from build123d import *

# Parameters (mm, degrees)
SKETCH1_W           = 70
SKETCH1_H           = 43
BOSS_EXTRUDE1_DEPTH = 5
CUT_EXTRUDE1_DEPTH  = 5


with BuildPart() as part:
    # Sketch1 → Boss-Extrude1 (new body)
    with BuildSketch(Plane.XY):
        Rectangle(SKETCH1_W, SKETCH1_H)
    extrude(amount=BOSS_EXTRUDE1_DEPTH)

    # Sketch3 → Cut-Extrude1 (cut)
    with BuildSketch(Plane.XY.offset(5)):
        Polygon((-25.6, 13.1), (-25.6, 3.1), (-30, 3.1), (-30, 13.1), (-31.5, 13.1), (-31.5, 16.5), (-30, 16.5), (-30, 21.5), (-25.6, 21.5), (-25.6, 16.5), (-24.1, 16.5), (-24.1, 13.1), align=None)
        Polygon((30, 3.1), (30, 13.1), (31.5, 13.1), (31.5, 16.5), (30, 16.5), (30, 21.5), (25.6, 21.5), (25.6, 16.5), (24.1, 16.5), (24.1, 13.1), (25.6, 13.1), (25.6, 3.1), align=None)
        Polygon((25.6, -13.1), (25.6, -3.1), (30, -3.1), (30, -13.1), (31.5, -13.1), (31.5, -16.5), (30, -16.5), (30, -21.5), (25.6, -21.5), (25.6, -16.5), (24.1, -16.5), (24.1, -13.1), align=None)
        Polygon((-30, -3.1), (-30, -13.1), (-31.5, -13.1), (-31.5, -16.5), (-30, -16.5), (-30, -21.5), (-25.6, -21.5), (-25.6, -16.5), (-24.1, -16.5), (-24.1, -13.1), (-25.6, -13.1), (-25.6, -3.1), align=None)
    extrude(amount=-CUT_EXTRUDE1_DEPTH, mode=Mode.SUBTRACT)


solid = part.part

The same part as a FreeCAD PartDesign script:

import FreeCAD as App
import Part
import Sketcher
Q = App.Units.Quantity

doc = App.newDocument("Part")
body = doc.addObject("PartDesign::Body", "Body")

# Sketch on XY plane
sketch1 = body.newObject("Sketcher::SketchObject", "Sketch")
sketch1.AttachmentSupport = (doc.getObject("XY_Plane"), [""])
sketch1.MapMode = "FlatFace"
sketch1.addGeometry([
    Part.LineSegment(App.Vector(-35, 22, 0), App.Vector(-35, -22, 0)),
    Part.LineSegment(App.Vector(-35, -22, 0), App.Vector(35, -22, 0)),
    Part.LineSegment(App.Vector(35, -22, 0), App.Vector(35, 22, 0)),
    Part.LineSegment(App.Vector(35, 22, 0), App.Vector(-35, 22, 0)),
], False)
sketch1.addConstraint([
    Sketcher.Constraint("Coincident", 0, 2, 1, 1),
    Sketcher.Constraint("Coincident", 1, 2, 2, 1),
    Sketcher.Constraint("Coincident", 2, 2, 3, 1),
    Sketcher.Constraint("Coincident", 3, 2, 0, 1),
    Sketcher.Constraint("Vertical", 0),
    Sketcher.Constraint("Horizontal", 1),
    Sketcher.Constraint("Vertical", 2),
    Sketcher.Constraint("Horizontal", 3),
    Sketcher.Constraint("Symmetric", 0, 2, 2, 2, -1, 1),
    Sketcher.Constraint("DistanceX", 1, 1, 1, 2, Q("70 mm")),
    Sketcher.Constraint("DistanceY", 0, 2, 0, 1, Q("43 mm")),
])
pad1 = body.newObject("PartDesign::Pad", "Pad")
pad1.Profile = sketch1
pad1.Length = 5

# Sketch on XY plane
sketch2 = body.newObject("Sketcher::SketchObject", "Sketch001")
sketch2.AttachmentSupport = (doc.getObject("XY_Plane"), [""])
sketch2.MapMode = "FlatFace"
sketch2.AttachmentOffset = App.Placement(App.Vector(0, 0, 5), App.Rotation())
sketch2.addGeometry([
    Part.LineSegment(App.Vector(-25.6, 3.1, 0), App.Vector(-25.6, 13.1, 0)),  # 0
    Part.LineSegment(App.Vector(-25.6, 13.1, 0), App.Vector(-24.1, 13.1, 0)),  # 1
    Part.LineSegment(App.Vector(-24.1, 13.1, 0), App.Vector(-24.1, 16.5, 0)),  # 2
    Part.LineSegment(App.Vector(-24.1, 16.5, 0), App.Vector(-25.6, 16.5, 0)),  # 3
    Part.LineSegment(App.Vector(-25.6, 16.5, 0), App.Vector(-25.6, 21.5, 0)),  # 4
    Part.LineSegment(App.Vector(-25.6, 21.5, 0), App.Vector(-30, 21.5, 0)),  # 5
    Part.LineSegment(App.Vector(-30, 21.5, 0), App.Vector(-30, 16.5, 0)),  # 6
    Part.LineSegment(App.Vector(-30, 16.5, 0), App.Vector(-31.5, 16.5, 0)),  # 7
    Part.LineSegment(App.Vector(-31.5, 16.5, 0), App.Vector(-31.5, 13.1, 0)),  # 8
    Part.LineSegment(App.Vector(-31.5, 13.1, 0), App.Vector(-30, 13.1, 0)),  # 9
    Part.LineSegment(App.Vector(-30, 13.1, 0), App.Vector(-30, 3.1, 0)),  # 10
    Part.LineSegment(App.Vector(-30, 3.1, 0), App.Vector(-25.6, 3.1, 0)),  # 11
    Part.LineSegment(App.Vector(30, 3.1, 0), App.Vector(30, 13.1, 0)),  # 12
    Part.LineSegment(App.Vector(30, 13.1, 0), App.Vector(31.5, 13.1, 0)),  # 13
    Part.LineSegment(App.Vector(31.5, 13.1, 0), App.Vector(31.5, 16.5, 0)),  # 14
    Part.LineSegment(App.Vector(31.5, 16.5, 0), App.Vector(30, 16.5, 0)),  # 15
    Part.LineSegment(App.Vector(30, 16.5, 0), App.Vector(30, 21.5, 0)),  # 16
    Part.LineSegment(App.Vector(30, 21.5, 0), App.Vector(25.6, 21.5, 0)),  # 17
    Part.LineSegment(App.Vector(25.6, 21.5, 0), App.Vector(25.6, 16.5, 0)),  # 18
    Part.LineSegment(App.Vector(25.6, 16.5, 0), App.Vector(24.1, 16.5, 0)),  # 19
    Part.LineSegment(App.Vector(24.1, 16.5, 0), App.Vector(24.1, 13.1, 0)),  # 20
    Part.LineSegment(App.Vector(24.1, 13.1, 0), App.Vector(25.6, 13.1, 0)),  # 21
    Part.LineSegment(App.Vector(25.6, 13.1, 0), App.Vector(25.6, 3.1, 0)),  # 22
    Part.LineSegment(App.Vector(25.6, 3.1, 0), App.Vector(30, 3.1, 0)),  # 23
    Part.LineSegment(App.Vector(25.6, -3.1, 0), App.Vector(25.6, -13.1, 0)),  # 24
    Part.LineSegment(App.Vector(25.6, -13.1, 0), App.Vector(24.1, -13.1, 0)),  # 25
    Part.LineSegment(App.Vector(24.1, -13.1, 0), App.Vector(24.1, -16.5, 0)),  # 26
    Part.LineSegment(App.Vector(24.1, -16.5, 0), App.Vector(25.6, -16.5, 0)),  # 27
    Part.LineSegment(App.Vector(25.6, -16.5, 0), App.Vector(25.6, -21.5, 0)),  # 28
    Part.LineSegment(App.Vector(25.6, -21.5, 0), App.Vector(30, -21.5, 0)),  # 29
    Part.LineSegment(App.Vector(30, -21.5, 0), App.Vector(30, -16.5, 0)),  # 30
    Part.LineSegment(App.Vector(30, -16.5, 0), App.Vector(31.5, -16.5, 0)),  # 31
    Part.LineSegment(App.Vector(31.5, -16.5, 0), App.Vector(31.5, -13.1, 0)),  # 32
    Part.LineSegment(App.Vector(31.5, -13.1, 0), App.Vector(30, -13.1, 0)),  # 33
    Part.LineSegment(App.Vector(30, -13.1, 0), App.Vector(30, -3.1, 0)),  # 34
    Part.LineSegment(App.Vector(30, -3.1, 0), App.Vector(25.6, -3.1, 0)),  # 35
    Part.LineSegment(App.Vector(-30, -3.1, 0), App.Vector(-30, -13.1, 0)),  # 36
    Part.LineSegment(App.Vector(-30, -13.1, 0), App.Vector(-31.5, -13.1, 0)),  # 37
    Part.LineSegment(App.Vector(-31.5, -13.1, 0), App.Vector(-31.5, -16.5, 0)),  # 38
    Part.LineSegment(App.Vector(-31.5, -16.5, 0), App.Vector(-30, -16.5, 0)),  # 39
    Part.LineSegment(App.Vector(-30, -16.5, 0), App.Vector(-30, -21.5, 0)),  # 40
    Part.LineSegment(App.Vector(-30, -21.5, 0), App.Vector(-25.6, -21.5, 0)),  # 41
    Part.LineSegment(App.Vector(-25.6, -21.5, 0), App.Vector(-25.6, -16.5, 0)),  # 42
    Part.LineSegment(App.Vector(-25.6, -16.5, 0), App.Vector(-24.1, -16.5, 0)),  # 43
    Part.LineSegment(App.Vector(-24.1, -16.5, 0), App.Vector(-24.1, -13.1, 0)),  # 44
    Part.LineSegment(App.Vector(-24.1, -13.1, 0), App.Vector(-25.6, -13.1, 0)),  # 45
    Part.LineSegment(App.Vector(-25.6, -13.1, 0), App.Vector(-25.6, -3.1, 0)),  # 46
    Part.LineSegment(App.Vector(-25.6, -3.1, 0), App.Vector(-30, -3.1, 0)),  # 47
], False)
sketch2.addConstraint([
    Sketcher.Constraint("Coincident", 0, 2, 1, 1),
    Sketcher.Constraint("Coincident", 1, 2, 2, 1),
    Sketcher.Constraint("Coincident", 2, 2, 3, 1),
    Sketcher.Constraint("Coincident", 3, 2, 4, 1),
    Sketcher.Constraint("Coincident", 4, 2, 5, 1),
    Sketcher.Constraint("Coincident", 5, 2, 6, 1),
    Sketcher.Constraint("Coincident", 6, 2, 7, 1),
    Sketcher.Constraint("Coincident", 7, 2, 8, 1),
    Sketcher.Constraint("Coincident", 8, 2, 9, 1),
    Sketcher.Constraint("Coincident", 9, 2, 10, 1),
    Sketcher.Constraint("Coincident", 10, 2, 11, 1),
    Sketcher.Constraint("Coincident", 11, 2, 0, 1),
    Sketcher.Constraint("Coincident", 12, 2, 13, 1),
    Sketcher.Constraint("Coincident", 13, 2, 14, 1),
    Sketcher.Constraint("Coincident", 14, 2, 15, 1),
    Sketcher.Constraint("Coincident", 15, 2, 16, 1),
    Sketcher.Constraint("Coincident", 16, 2, 17, 1),
    Sketcher.Constraint("Coincident", 17, 2, 18, 1),
    Sketcher.Constraint("Coincident", 18, 2, 19, 1),
    Sketcher.Constraint("Coincident", 19, 2, 20, 1),
    Sketcher.Constraint("Coincident", 20, 2, 21, 1),
    Sketcher.Constraint("Coincident", 21, 2, 22, 1),
    Sketcher.Constraint("Coincident", 22, 2, 23, 1),
    Sketcher.Constraint("Coincident", 23, 2, 12, 1),
    Sketcher.Constraint("Coincident", 24, 2, 25, 1),
    Sketcher.Constraint("Coincident", 25, 2, 26, 1),
    Sketcher.Constraint("Coincident", 26, 2, 27, 1),
    Sketcher.Constraint("Coincident", 27, 2, 28, 1),
    Sketcher.Constraint("Coincident", 28, 2, 29, 1),
    Sketcher.Constraint("Coincident", 29, 2, 30, 1),
    Sketcher.Constraint("Coincident", 30, 2, 31, 1),
    Sketcher.Constraint("Coincident", 31, 2, 32, 1),
    Sketcher.Constraint("Coincident", 32, 2, 33, 1),
    Sketcher.Constraint("Coincident", 33, 2, 34, 1),
    Sketcher.Constraint("Coincident", 34, 2, 35, 1),
    Sketcher.Constraint("Coincident", 35, 2, 24, 1),
    Sketcher.Constraint("Coincident", 36, 2, 37, 1),
    Sketcher.Constraint("Coincident", 37, 2, 38, 1),
    Sketcher.Constraint("Coincident", 38, 2, 39, 1),
    Sketcher.Constraint("Coincident", 39, 2, 40, 1),
    Sketcher.Constraint("Coincident", 40, 2, 41, 1),
    Sketcher.Constraint("Coincident", 41, 2, 42, 1),
    Sketcher.Constraint("Coincident", 42, 2, 43, 1),
    Sketcher.Constraint("Coincident", 43, 2, 44, 1),
    Sketcher.Constraint("Coincident", 44, 2, 45, 1),
    Sketcher.Constraint("Coincident", 45, 2, 46, 1),
    Sketcher.Constraint("Coincident", 46, 2, 47, 1),
    Sketcher.Constraint("Coincident", 47, 2, 36, 1),
    Sketcher.Constraint("Vertical", 0),
    Sketcher.Constraint("Horizontal", 1),
    Sketcher.Constraint("Vertical", 2),
    Sketcher.Constraint("Horizontal", 3),
    Sketcher.Constraint("Vertical", 4),
    Sketcher.Constraint("Horizontal", 5),
    Sketcher.Constraint("Vertical", 6),
    Sketcher.Constraint("Horizontal", 7),
    Sketcher.Constraint("Vertical", 8),
    Sketcher.Constraint("Horizontal", 9),
    Sketcher.Constraint("Vertical", 10),
    Sketcher.Constraint("Horizontal", 11),
    Sketcher.Constraint("Vertical", 12),
    Sketcher.Constraint("Horizontal", 13),
    Sketcher.Constraint("Vertical", 14),
    Sketcher.Constraint("Horizontal", 15),
    Sketcher.Constraint("Vertical", 16),
    Sketcher.Constraint("Horizontal", 17),
    Sketcher.Constraint("Vertical", 18),
    Sketcher.Constraint("Horizontal", 19),
    Sketcher.Constraint("Vertical", 20),
    Sketcher.Constraint("Horizontal", 21),
    Sketcher.Constraint("Vertical", 22),
    Sketcher.Constraint("Horizontal", 23),
    Sketcher.Constraint("Vertical", 24),
    Sketcher.Constraint("Horizontal", 25),
    Sketcher.Constraint("Vertical", 26),
    Sketcher.Constraint("Horizontal", 27),
    Sketcher.Constraint("Vertical", 28),
    Sketcher.Constraint("Horizontal", 29),
    Sketcher.Constraint("Vertical", 30),
    Sketcher.Constraint("Horizontal", 31),
    Sketcher.Constraint("Vertical", 32),
    Sketcher.Constraint("Horizontal", 33),
    Sketcher.Constraint("Vertical", 34),
    Sketcher.Constraint("Horizontal", 35),
    Sketcher.Constraint("Vertical", 36),
    Sketcher.Constraint("Horizontal", 37),
    Sketcher.Constraint("Vertical", 38),
    Sketcher.Constraint("Horizontal", 39),
    Sketcher.Constraint("Vertical", 40),
    Sketcher.Constraint("Horizontal", 41),
    Sketcher.Constraint("Vertical", 42),
    Sketcher.Constraint("Horizontal", 43),
    Sketcher.Constraint("Vertical", 44),
    Sketcher.Constraint("Horizontal", 45),
    Sketcher.Constraint("Vertical", 46),
    Sketcher.Constraint("Horizontal", 47),
    Sketcher.Constraint("Symmetric", 0, 2, 24, 2, -1, 1),
    Sketcher.Constraint("Symmetric", 2, 2, 26, 2, -1, 1),
    Sketcher.Constraint("Symmetric", 4, 2, 28, 2, -1, 1),
    Sketcher.Constraint("Symmetric", 6, 2, 30, 2, -1, 1),
    Sketcher.Constraint("Symmetric", 8, 2, 32, 2, -1, 1),
    Sketcher.Constraint("Symmetric", 10, 2, 34, 2, -1, 1),
    Sketcher.Constraint("Symmetric", 12, 2, 36, 2, -1, 1),
    Sketcher.Constraint("Symmetric", 14, 2, 38, 2, -1, 1),
    Sketcher.Constraint("Symmetric", 16, 2, 40, 2, -1, 1),
    Sketcher.Constraint("Symmetric", 18, 2, 42, 2, -1, 1),
    Sketcher.Constraint("Symmetric", 20, 2, 44, 2, -1, 1),
    Sketcher.Constraint("Symmetric", 22, 2, 46, 2, -1, 1),
    Sketcher.Constraint("Symmetric", 9, 2, 12, 2, -2),
    Sketcher.Constraint("Symmetric", 7, 2, 14, 2, -2),
    Sketcher.Constraint("Symmetric", 5, 2, 16, 2, -2),
    Sketcher.Constraint("Symmetric", 3, 2, 18, 2, -2),
    Sketcher.Constraint("Symmetric", 1, 2, 20, 2, -2),
    Sketcher.Constraint("Symmetric", 11, 2, 22, 2, -2),
    Sketcher.Constraint("Horizontal", 3, 2, 6, 2),
    Sketcher.Constraint("Horizontal", 1, 2, 8, 2),
    Sketcher.Constraint("Vertical", 0, 2, 3, 2),
    Sketcher.Constraint("Vertical", 6, 2, 9, 2),
    Sketcher.Constraint("Equal", 3, 7),
    Sketcher.Constraint("DistanceY", 0, 1, 0, 2, Q("10 mm")),
    Sketcher.Constraint("DistanceY", 4, 1, 4, 2, Q("5 mm")),
    Sketcher.Constraint("DistanceX", 1, 1, 1, 2, Q("1.5 mm")),
    Sketcher.Constraint("DistanceX", 5, 2, 5, 1, Q("4.4 mm")),
    Sketcher.Constraint("DistanceY", 2, 1, 2, 2, Q("3.4 mm")),
    Sketcher.Constraint("DistanceX", 5, 2, -1, 1, Q("30 mm")),
    Sketcher.Constraint("DistanceY", -1, 1, 0, 2, Q("13.1 mm")),
])
pocket1 = body.newObject("PartDesign::Pocket", "Pocket")
pocket1.Profile = sketch2
pocket1.Length = 5

doc.recompute()
